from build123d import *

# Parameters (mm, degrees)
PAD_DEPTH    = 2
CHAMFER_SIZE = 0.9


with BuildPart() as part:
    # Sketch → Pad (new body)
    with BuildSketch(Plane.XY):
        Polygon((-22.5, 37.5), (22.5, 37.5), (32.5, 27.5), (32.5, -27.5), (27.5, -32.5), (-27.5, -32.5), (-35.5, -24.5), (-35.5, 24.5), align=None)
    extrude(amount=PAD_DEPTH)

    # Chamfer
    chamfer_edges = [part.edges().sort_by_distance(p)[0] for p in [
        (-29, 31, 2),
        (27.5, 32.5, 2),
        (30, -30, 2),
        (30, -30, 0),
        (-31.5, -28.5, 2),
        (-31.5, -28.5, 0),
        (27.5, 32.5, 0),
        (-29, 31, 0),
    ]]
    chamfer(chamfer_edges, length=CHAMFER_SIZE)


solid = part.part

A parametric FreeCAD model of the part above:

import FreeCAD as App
import Part
import Sketcher

V = App.Vector
Q = App.Units.Quantity


def edges_at(feature, points):
    """Names of the edges that pass closest to the given points."""
    edges = feature.Shape.Edges
    near = lambda p: min(range(len(edges)), key=lambda i: edges[i].distToShape(Part.Vertex(*p))[0])
    return sorted({f"Edge{near(p) + 1}" for p in points})


def add_polygon(sketch, points):
    """Adds a closed chain of lines whose ends are joined by coincident constraints."""
    first, n = sketch.GeometryCount, len(points)
    for a, b in zip(points, points[1:] + points[:1]):
        sketch.addGeometry(Part.LineSegment(App.Vector(*a, 0), App.Vector(*b, 0)), False)
    for i in range(n):
        sketch.addConstraint(Sketcher.Constraint("Coincident", first + i, 2, first + (i + 1) % n, 1))

doc = App.newDocument("Part")
body = doc.addObject("PartDesign::Body", "Body")

# Sketch on XY plane
sketch1 = body.newObject("Sketcher::SketchObject", "Sketch")
sketch1.AttachmentSupport = (doc.getObject("XY_Plane"), [""])
sketch1.MapMode = "FlatFace"
add_polygon(sketch1, [(22, 38), (-22, 38), (-36, 24), (-36, -24), (-28, -32), (28, -32), (32, -28), (32, 28)])  # lines 0-7
sketch1.addConstraint([
    Sketcher.Constraint("Horizontal", 0),
    Sketcher.Constraint("Vertical", 2),
    Sketcher.Constraint("Horizontal", 4),
    Sketcher.Constraint("Vertical", 6),
    Sketcher.Constraint("Perpendicular", 1, 3),
    Sketcher.Constraint("Perpendicular", 3, 5),
    Sketcher.Constraint("Perpendicular", 5, 7),
    Sketcher.Constraint("Equal", 4, 6),
    Sketcher.Constraint("DistanceX", 0, 2, 0, 1, 45.0),
    Sketcher.Constraint("DistanceX", 4, 1, 4, 2, 55.0),
    Sketcher.Constraint("DistanceY", 2, 2, 2, 1, 49.0),
    Sketcher.Constraint("Angle", 1, Q("-135 deg")),
    Sketcher.Constraint("DistanceX", 1, 2, 0, 2, 13.0),
    Sketcher.Constraint("DistanceX", 2, 2, 3, 2, 8.0),
    Sketcher.Constraint("DistanceX", 0, 2, -1, 1, 22.5),
    Sketcher.Constraint("DistanceY", -1, 1, 0, 2, 37.5),
])
pad1 = body.newObject("PartDesign::Pad", "Pad")
pad1.Profile = sketch1
pad1.Length = 2
doc.recompute()

chamfer = body.newObject("PartDesign::Chamfer", "Chamfer")
chamfer.Base = (pad1, edges_at(pad1, [
    (-29, 31, 2),
    (27.5, 32.5, 2),
    (30, -30, 2),
    (30, -30, 0),
    (-31.5, -28.5, 2),
    (-31.5, -28.5, 0),
    (27.5, 32.5, 0),
    (-29, 31, 0),
]))
chamfer.Size = 0.9

doc.recompute()
